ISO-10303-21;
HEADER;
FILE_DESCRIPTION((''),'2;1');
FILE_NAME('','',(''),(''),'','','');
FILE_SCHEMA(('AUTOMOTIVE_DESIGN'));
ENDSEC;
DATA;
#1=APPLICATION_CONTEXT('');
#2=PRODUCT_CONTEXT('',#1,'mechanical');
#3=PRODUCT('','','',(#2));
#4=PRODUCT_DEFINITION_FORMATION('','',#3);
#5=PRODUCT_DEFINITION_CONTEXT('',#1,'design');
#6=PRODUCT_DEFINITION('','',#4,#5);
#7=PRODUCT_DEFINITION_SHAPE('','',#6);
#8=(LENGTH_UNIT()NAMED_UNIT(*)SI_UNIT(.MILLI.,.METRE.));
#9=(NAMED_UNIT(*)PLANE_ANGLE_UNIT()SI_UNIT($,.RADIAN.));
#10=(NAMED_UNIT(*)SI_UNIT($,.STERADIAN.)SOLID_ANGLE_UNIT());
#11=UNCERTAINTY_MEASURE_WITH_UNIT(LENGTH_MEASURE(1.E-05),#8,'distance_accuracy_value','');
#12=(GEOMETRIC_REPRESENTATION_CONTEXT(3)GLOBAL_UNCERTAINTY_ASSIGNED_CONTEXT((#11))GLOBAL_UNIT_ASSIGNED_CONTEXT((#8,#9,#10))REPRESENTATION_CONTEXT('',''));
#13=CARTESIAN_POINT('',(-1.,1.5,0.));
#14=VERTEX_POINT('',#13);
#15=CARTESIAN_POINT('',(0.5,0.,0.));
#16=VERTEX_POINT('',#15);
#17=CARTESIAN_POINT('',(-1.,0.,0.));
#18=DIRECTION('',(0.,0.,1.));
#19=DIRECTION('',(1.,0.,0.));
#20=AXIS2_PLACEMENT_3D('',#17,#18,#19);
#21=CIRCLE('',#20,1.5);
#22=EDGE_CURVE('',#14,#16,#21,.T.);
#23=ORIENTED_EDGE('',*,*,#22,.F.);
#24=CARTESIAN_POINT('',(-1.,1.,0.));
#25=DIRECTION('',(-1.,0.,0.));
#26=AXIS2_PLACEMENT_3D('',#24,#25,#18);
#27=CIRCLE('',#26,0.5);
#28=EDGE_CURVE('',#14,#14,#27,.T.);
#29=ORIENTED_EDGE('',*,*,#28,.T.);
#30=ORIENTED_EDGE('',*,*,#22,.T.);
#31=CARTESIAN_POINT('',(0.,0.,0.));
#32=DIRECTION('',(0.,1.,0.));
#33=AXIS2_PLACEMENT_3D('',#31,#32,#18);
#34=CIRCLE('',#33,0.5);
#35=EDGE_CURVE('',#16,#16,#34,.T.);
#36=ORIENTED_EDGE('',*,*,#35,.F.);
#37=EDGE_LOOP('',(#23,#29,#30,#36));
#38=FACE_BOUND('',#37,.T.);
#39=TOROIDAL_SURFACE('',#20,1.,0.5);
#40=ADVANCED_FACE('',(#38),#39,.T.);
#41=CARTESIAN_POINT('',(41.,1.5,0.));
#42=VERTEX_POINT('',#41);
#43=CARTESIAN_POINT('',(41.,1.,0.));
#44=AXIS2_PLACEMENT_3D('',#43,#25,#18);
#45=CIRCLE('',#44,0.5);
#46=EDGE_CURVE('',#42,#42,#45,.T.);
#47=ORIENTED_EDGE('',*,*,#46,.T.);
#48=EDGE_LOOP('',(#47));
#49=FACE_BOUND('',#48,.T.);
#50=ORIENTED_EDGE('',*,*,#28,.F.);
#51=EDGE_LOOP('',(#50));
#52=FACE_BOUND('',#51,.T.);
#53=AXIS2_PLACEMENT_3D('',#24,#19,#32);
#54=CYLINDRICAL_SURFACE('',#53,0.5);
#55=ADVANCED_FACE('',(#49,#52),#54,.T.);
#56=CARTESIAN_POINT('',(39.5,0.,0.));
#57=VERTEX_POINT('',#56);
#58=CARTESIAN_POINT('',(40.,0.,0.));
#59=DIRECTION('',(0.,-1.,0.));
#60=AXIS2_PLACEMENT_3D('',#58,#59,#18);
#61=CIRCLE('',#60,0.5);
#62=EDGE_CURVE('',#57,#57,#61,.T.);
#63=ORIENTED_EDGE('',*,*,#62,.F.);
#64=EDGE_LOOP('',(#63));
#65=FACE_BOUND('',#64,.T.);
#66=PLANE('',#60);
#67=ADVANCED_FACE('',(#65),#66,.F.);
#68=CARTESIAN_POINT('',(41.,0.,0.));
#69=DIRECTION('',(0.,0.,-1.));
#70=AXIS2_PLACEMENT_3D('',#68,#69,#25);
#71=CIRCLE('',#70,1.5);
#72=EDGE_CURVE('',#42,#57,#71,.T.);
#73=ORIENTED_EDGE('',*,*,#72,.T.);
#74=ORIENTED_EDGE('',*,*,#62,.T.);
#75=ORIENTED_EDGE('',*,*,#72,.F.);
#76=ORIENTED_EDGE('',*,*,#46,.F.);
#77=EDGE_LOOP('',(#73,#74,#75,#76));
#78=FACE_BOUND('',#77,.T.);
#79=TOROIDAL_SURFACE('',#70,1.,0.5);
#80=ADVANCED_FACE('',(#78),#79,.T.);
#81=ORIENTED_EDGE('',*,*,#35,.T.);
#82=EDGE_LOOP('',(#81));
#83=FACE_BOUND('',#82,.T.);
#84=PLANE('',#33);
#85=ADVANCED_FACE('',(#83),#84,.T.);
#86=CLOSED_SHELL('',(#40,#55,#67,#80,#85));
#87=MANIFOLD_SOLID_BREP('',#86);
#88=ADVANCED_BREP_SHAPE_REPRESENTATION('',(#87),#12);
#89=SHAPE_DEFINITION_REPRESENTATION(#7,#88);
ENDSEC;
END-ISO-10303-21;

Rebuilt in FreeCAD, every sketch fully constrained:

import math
import FreeCAD as App
import Part
import Sketcher

V = App.Vector

doc = App.newDocument("Part")
body = doc.addObject("PartDesign::Body", "Body")

# Sketch on XZ plane
sketch1 = body.newObject("Sketcher::SketchObject", "Sketch")
sketch1.AttachmentSupport = (doc.getObject("XZ_Plane"), [""])
sketch1.MapMode = "FlatFace"
sketch1.addGeometry(Part.Circle(V(0, 0, 0), V(0, 0, 1), 0.5), False)
sketch1.addConstraint([
    Sketcher.Constraint("Coincident", 0, 3, -1, 1),
    Sketcher.Constraint("Diameter", 0, 1.0),
])

# Sketch on XY plane
sketch2 = body.newObject("Sketcher::SketchObject", "Sketch001")
sketch2.AttachmentSupport = (doc.getObject("XY_Plane"), [""])
sketch2.MapMode = "FlatFace"
sketch2.addGeometry([
    Part.ArcOfCircle(Part.Circle(V(-1, 0, 0), V(0, 0, 1), 1), math.radians(90), math.radians(360)),
    Part.LineSegment(V(-1, 1, 0), V(41, 1, 0)),
    Part.ArcOfCircle(Part.Circle(V(41, 0, 0), V(0, 0, 1), 1), math.radians(180), math.radians(450)),
], False)
sketch2.addConstraint([
    Sketcher.Constraint("Tangent", 0, 1, 1, 1),
    Sketcher.Constraint("Tangent", 1, 2, 2, 2),
    Sketcher.Constraint("Horizontal", 1),
    Sketcher.Constraint("Coincident", 0, 2, -1, 1),
    Sketcher.Constraint("Equal", 0, 2),
    Sketcher.Constraint("PointOnObject", 0, 3, -1),
    Sketcher.Constraint("PointOnObject", 2, 1, -1),
    Sketcher.Constraint("Radius", 0, 1.0),
    Sketcher.Constraint("DistanceX", 1, 1, 1, 2, 42.0),
])
doc.recompute()

additivepipe = body.newObject("PartDesign::AdditivePipe", "AdditivePipe")
additivepipe.Profile = sketch1
additivepipe.Spine = (sketch2, ["Edge1", "Edge2", "Edge3"])

doc.recompute()
